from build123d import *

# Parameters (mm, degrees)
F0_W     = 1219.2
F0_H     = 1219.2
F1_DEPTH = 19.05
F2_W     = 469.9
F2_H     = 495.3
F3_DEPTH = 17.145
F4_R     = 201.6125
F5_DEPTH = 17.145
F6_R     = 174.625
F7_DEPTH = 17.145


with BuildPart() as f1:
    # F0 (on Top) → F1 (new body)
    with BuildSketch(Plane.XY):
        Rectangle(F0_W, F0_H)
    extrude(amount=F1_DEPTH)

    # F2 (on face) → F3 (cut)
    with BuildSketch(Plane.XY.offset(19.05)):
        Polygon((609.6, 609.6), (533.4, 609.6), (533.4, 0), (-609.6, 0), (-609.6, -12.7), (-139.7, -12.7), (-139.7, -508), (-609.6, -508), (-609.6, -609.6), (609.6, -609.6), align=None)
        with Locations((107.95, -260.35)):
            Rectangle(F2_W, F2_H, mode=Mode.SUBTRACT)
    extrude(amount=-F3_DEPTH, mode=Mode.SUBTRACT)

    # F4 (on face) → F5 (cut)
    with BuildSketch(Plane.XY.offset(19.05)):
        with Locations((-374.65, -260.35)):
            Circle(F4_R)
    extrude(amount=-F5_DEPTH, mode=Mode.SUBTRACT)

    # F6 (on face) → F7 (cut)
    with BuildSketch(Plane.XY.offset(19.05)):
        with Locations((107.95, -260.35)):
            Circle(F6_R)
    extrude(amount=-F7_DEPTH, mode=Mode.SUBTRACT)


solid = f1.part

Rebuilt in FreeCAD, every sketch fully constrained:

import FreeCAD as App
import Part
import Sketcher

V = App.Vector
Q = App.Units.Quantity


def add_polygon(sketch, points):
    """Adds a closed chain of lines whose ends are joined by coincident constraints."""
    first, n = sketch.GeometryCount, len(points)
    for a, b in zip(points, points[1:] + points[:1]):
        sketch.addGeometry(Part.LineSegment(App.Vector(*a, 0), App.Vector(*b, 0)), False)
    for i in range(n):
        sketch.addConstraint(Sketcher.Constraint("Coincident", first + i, 2, first + (i + 1) % n, 1))

doc = App.newDocument("Part")
body = doc.addObject("PartDesign::Body", "Body")

sketch1 = body.newObject("Sketcher::SketchObject", "Sketch")
sketch1.AttachmentSupport = (doc.getObject("XY_Plane"), [""])
sketch1.MapMode = "FlatFace"
add_polygon(sketch1, [(-610, 610), (-610, -610), (610, -610), (610, 610)])
sketch1.addConstraint([
    Sketcher.Constraint("Vertical", 0),
    Sketcher.Constraint("Horizontal", 1),
    Sketcher.Constraint("Vertical", 2),
    Sketcher.Constraint("Horizontal", 3),
    Sketcher.Constraint("Symmetric", 0, 2, 2, 2, -1, 1),
    Sketcher.Constraint("Equal", 3, 0),
    Sketcher.Constraint("DistanceX", 1, 1, 1, 2, Q("48 in")),
])
pad1 = body.newObject("PartDesign::Pad", "Pad")
pad1.Profile = sketch1
pad1.Length = Q("0.75 in")

sketch2 = body.newObject("Sketcher::SketchObject", "Sketch001")
sketch2.AttachmentSupport = (doc.getObject("XY_Plane"), [""])
sketch2.MapMode = "FlatFace"
sketch2.AttachmentOffset = App.Placement(V(0, 0, 0.75 * 25.4), App.Rotation())
add_polygon(sketch2, [(610, 610), (533, 610), (533, 0), (-610, 0), (-610, -13), (-140, -13), (-140, -508), (-610, -508), (-610, -610), (610, -610)])
add_polygon(sketch2, [(343, -508), (-127, -508), (-127, -13), (343, -13)])
sketch2.addConstraint([
    Sketcher.Constraint("Horizontal", 0),
    Sketcher.Constraint("Vertical", 1),
    Sketcher.Constraint("Horizontal", 2),
    Sketcher.Constraint("Vertical", 3),
    Sketcher.Constraint("Horizontal", 4),
    Sketcher.Constraint("Vertical", 5),
    Sketcher.Constraint("Horizontal", 6),
    Sketcher.Constraint("Vertical", 7),
    Sketcher.Constraint("Horizontal", 8),
    Sketcher.Constraint("Vertical", 9),
    Sketcher.Constraint("Horizontal", 10),
    Sketcher.Constraint("Vertical", 11),
    Sketcher.Constraint("Horizontal", 12),
    Sketcher.Constraint("Vertical", 13),
    Sketcher.Constraint("Symmetric", 7, 2, 9, 2, -1, 1),
    Sketcher.Constraint("PointOnObject", 1, 2, -1),
    Sketcher.Constraint("Horizontal", 6, 2, 10, 2),
    Sketcher.Constraint("Horizontal", 4, 2, 11, 2),
    Sketcher.Constraint("Vertical", 3, 2, 6, 2),
    Sketcher.Constraint("Equal", 6, 10),
    Sketcher.Constraint("Equal", 8, 9),
    Sketcher.Constraint("DistanceX", 0, 2, 0, 1, Q("3 in")),
    Sketcher.Constraint("DistanceX", 2, 2, 2, 1, Q("45 in")),
    Sketcher.Constraint("DistanceY", 7, 2, 7, 1, Q("4 in")),
    Sketcher.Constraint("DistanceX", 4, 1, 4, 2, Q("18.5 in")),
    Sketcher.Constraint("DistanceY", 3, 2, 3, 1, Q("0.5 in")),
    Sketcher.Constraint("DistanceX", 10, 2, -1, 1, Q("5 in")),
])
pocket1 = body.newObject("PartDesign::Pocket", "Pocket")
pocket1.Profile = sketch2
pocket1.Length = Q("0.675 in")

sketch3 = body.newObject("Sketcher::SketchObject", "Sketch002")
sketch3.AttachmentSupport = (doc.getObject("XY_Plane"), [""])
sketch3.MapMode = "FlatFace"
sketch3.AttachmentOffset = App.Placement(V(0, 0, 0.75 * 25.4), App.Rotation())
sketch3.addGeometry(Part.Circle(V(-375, -260, 0), V(0, 0, 1), 202), False)
sketch3.addConstraint([
    Sketcher.Constraint("Diameter", 0, Q("15.875 in")),
    Sketcher.Constraint("DistanceX", 0, 3, -1, 1, Q("14.75 in")),
    Sketcher.Constraint("DistanceY", 0, 3, -1, 1, Q("10.25 in")),
])
pocket2 = body.newObject("PartDesign::Pocket", "Pocket001")
pocket2.Profile = sketch3
pocket2.Length = Q("0.675 in")

sketch4 = body.newObject("Sketcher::SketchObject", "Sketch003")
sketch4.AttachmentSupport = (doc.getObject("XY_Plane"), [""])
sketch4.MapMode = "FlatFace"
sketch4.AttachmentOffset = App.Placement(V(0, 0, 0.75 * 25.4), App.Rotation())
sketch4.addGeometry(Part.Circle(V(108, -260, 0), V(0, 0, 1), 175), False)
sketch4.addConstraint([
    Sketcher.Constraint("Diameter", 0, Q("13.75 in")),
    Sketcher.Constraint("DistanceX", -1, 1, 0, 3, Q("4.25 in")),
    Sketcher.Constraint("DistanceY", 0, 3, -1, 1, Q("10.25 in")),
])
pocket3 = body.newObject("PartDesign::Pocket", "Pocket002")
pocket3.Profile = sketch4
pocket3.Length = Q("0.675 in")

doc.recompute()
